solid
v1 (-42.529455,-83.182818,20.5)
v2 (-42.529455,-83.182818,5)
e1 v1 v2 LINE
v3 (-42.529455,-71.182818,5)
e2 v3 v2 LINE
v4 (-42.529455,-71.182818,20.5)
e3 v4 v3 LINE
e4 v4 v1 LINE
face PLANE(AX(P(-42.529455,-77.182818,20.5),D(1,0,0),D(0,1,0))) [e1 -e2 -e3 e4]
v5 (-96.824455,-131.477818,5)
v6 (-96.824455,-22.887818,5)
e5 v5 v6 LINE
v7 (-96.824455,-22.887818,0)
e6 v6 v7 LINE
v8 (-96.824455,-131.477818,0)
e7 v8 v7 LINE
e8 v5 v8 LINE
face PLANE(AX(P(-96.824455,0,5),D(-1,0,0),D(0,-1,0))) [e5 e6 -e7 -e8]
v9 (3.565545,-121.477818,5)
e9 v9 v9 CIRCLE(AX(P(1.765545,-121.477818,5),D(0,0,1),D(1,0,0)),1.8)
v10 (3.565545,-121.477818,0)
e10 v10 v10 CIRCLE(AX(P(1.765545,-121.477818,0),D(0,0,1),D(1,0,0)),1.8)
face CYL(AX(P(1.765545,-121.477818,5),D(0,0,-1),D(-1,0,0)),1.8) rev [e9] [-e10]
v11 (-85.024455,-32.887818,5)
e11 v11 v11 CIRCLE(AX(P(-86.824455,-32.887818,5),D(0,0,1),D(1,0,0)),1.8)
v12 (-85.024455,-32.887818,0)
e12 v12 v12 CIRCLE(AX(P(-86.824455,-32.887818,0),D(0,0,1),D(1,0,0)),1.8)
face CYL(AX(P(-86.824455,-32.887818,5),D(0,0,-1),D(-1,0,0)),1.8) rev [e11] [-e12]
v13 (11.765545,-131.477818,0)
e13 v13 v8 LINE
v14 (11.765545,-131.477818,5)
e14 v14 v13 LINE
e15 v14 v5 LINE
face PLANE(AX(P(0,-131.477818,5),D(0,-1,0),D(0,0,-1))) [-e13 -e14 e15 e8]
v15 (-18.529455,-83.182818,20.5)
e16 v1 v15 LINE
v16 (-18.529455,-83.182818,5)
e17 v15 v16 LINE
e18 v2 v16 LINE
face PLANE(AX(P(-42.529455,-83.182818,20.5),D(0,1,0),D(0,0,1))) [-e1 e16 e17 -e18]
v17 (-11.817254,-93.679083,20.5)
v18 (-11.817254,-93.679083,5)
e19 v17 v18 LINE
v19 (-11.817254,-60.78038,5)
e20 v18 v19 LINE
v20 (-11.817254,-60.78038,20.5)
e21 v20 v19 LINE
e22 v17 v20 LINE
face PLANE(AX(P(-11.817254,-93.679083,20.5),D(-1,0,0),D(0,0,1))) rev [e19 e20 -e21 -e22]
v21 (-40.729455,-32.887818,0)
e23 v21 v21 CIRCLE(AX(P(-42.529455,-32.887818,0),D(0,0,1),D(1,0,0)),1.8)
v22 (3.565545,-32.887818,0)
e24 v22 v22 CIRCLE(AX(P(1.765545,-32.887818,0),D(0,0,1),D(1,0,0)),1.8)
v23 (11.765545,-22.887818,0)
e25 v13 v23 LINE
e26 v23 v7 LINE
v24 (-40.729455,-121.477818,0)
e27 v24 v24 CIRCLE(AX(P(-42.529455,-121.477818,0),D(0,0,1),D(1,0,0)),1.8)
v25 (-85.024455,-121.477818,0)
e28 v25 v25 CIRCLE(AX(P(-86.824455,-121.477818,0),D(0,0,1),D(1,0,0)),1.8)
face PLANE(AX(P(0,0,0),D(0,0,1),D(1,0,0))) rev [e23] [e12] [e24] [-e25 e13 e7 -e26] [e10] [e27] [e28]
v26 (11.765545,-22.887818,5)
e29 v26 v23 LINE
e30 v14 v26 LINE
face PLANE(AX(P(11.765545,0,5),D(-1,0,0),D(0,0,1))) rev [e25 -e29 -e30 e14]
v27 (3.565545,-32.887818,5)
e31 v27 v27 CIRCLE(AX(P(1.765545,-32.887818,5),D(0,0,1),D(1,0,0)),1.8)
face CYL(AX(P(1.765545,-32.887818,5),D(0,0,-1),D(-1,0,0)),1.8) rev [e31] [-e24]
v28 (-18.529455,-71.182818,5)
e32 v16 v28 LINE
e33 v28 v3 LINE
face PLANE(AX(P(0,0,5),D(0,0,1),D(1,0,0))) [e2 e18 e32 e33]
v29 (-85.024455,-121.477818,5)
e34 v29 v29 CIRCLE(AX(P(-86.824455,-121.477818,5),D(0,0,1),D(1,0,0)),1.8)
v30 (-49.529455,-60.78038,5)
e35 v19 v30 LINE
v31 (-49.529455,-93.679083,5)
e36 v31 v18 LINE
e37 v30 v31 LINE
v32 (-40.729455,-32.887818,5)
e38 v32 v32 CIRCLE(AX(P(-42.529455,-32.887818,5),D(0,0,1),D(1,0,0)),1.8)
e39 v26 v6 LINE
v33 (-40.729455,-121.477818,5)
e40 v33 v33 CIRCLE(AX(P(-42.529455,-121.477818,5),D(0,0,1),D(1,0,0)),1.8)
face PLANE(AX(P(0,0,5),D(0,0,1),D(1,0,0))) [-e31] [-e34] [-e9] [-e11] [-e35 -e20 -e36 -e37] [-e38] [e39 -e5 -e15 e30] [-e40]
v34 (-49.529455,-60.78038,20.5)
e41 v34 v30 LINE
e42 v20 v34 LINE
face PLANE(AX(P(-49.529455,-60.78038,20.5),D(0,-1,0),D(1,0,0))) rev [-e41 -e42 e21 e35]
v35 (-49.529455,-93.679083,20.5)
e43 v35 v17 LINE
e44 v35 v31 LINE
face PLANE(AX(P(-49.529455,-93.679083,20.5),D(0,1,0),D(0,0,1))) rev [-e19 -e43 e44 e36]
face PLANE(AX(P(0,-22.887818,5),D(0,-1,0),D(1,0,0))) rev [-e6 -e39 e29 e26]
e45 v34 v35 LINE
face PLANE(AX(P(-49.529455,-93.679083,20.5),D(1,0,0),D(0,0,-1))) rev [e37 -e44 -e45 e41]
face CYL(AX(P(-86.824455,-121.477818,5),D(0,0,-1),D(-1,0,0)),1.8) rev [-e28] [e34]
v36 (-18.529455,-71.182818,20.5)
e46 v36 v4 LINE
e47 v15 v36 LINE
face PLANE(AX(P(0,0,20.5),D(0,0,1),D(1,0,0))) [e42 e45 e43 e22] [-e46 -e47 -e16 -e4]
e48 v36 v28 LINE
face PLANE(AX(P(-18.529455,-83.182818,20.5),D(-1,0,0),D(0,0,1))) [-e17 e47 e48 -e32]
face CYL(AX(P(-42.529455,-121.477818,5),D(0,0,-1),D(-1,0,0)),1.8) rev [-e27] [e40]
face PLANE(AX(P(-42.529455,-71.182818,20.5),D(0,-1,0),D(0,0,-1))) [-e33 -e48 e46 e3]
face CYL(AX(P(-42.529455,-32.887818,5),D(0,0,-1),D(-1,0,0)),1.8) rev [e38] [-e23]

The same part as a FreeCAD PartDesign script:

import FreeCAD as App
import Part
import Sketcher
from FreeCAD import Vector


def add_polygon(sketch, points):
    """Adds a closed chain of lines whose ends are joined by coincident constraints."""
    first, n = sketch.GeometryCount, len(points)
    for a, b in zip(points, points[1:] + points[:1]):
        sketch.addGeometry(Part.LineSegment(App.Vector(*a, 0), App.Vector(*b, 0)), False)
    for i in range(n):
        sketch.addConstraint(Sketcher.Constraint("Coincident", first + i, 2, first + (i + 1) % n, 1))

doc = App.newDocument("Part")
params = doc.addObject("Spreadsheet::Sheet", "Params")
for row, (alias, value) in enumerate([
    ("sketch1_diameter", "3.6 mm"),
    ("sketch1_width", "108.59 mm"),
    ("pad1_length", "5 mm"),
    ("sketch2_width", "24 mm"),
    ("sketch2_height", "12 mm"),
    ("pad2_length", "15.5 mm"),
], start=1):
    params.set(f"A{row}", alias)
    params.set(f"B{row}", "=" + value)
    params.setAlias(f"B{row}", alias)

body = doc.addObject("PartDesign::Body", "Body")

# Sketch on XY plane
sketch1 = body.newObject("Sketcher::SketchObject", "Sketch")
sketch1.AttachmentSupport = (doc.getObject("XY_Plane"), [""])
sketch1.MapMode = "FlatFace"
add_polygon(sketch1, [(11.8, -131.5), (11.8, -22.9), (-96.8, -22.9), (-96.8, -131.5)])  # lines 0-3
sketch1.addGeometry(Part.Circle(Vector(1.8, -32.9, 0), Vector(0, 0, 1), 1.8), False)  # 4
sketch1.addGeometry(Part.Circle(Vector(-42.5, -32.9, 0), Vector(0, 0, 1), 1.8), False)  # 5
sketch1.addGeometry(Part.Circle(Vector(-86.8, -32.9, 0), Vector(0, 0, 1), 1.8), False)  # 6
sketch1.addGeometry(Part.Circle(Vector(1.8, -121.5, 0), Vector(0, 0, 1), 1.8), False)  # 7
sketch1.addGeometry(Part.Circle(Vector(-42.5, -121.5, 0), Vector(0, 0, 1), 1.8), False)  # 8
sketch1.addGeometry(Part.Circle(Vector(-86.8, -121.5, 0), Vector(0, 0, 1), 1.8), False)  # 9
sketch1.addConstraint(Sketcher.Constraint("Vertical", 0))
sketch1.addConstraint(Sketcher.Constraint("Horizontal", 1))
sketch1.addConstraint(Sketcher.Constraint("Vertical", 2))
sketch1.addConstraint(Sketcher.Constraint("Horizontal", 3))
sketch1.addConstraint(Sketcher.Constraint("Equal", 4, 5))
sketch1.addConstraint(Sketcher.Constraint("Equal", 5, 6))
sketch1.addConstraint(Sketcher.Constraint("Equal", 6, 7))
sketch1.addConstraint(Sketcher.Constraint("Equal", 7, 8))
sketch1.addConstraint(Sketcher.Constraint("Equal", 8, 9))
sketch1.addConstraint(Sketcher.Constraint("Horizontal", 4, 3, 5, 3))
sketch1.addConstraint(Sketcher.Constraint("Horizontal", 5, 3, 6, 3))
sketch1.addConstraint(Sketcher.Constraint("Horizontal", 7, 3, 8, 3))
sketch1.addConstraint(Sketcher.Constraint("Horizontal", 8, 3, 9, 3))
sketch1.addConstraint(Sketcher.Constraint("Vertical", 4, 3, 7, 3))
sketch1.addConstraint(Sketcher.Constraint("Vertical", 5, 3, 8, 3))
sketch1.addConstraint(Sketcher.Constraint("Vertical", 6, 3, 9, 3))
sketch1.addConstraint(Sketcher.Constraint("Equal", 3, 0))
sketch1.addConstraint(Sketcher.Constraint("Diameter", 4, 3.6))
sketch1.addConstraint(Sketcher.Constraint("DistanceX", 4, 3, 0, 2, 10.0))
sketch1.addConstraint(Sketcher.Constraint("DistanceY", 4, 3, 0, 2, 10.0))
sketch1.addConstraint(Sketcher.Constraint("DistanceX", 1, 2, 6, 3, 10.0))
sketch1.addConstraint(Sketcher.Constraint("DistanceY", 2, 2, 9, 3, 10.0))
sketch1.addConstraint(Sketcher.Constraint("DistanceX", 1, 2, 1, 1, 108.59))
sketch1.addConstraint(Sketcher.Constraint("DistanceX", 5, 3, 4, 3, 44.295))
sketch1.addConstraint(Sketcher.Constraint("DistanceX", -1, 1, 4, 3, 1.765545))
sketch1.addConstraint(Sketcher.Constraint("DistanceY", 4, 3, -1, 1, 32.887818))
sketch1.setExpression("Constraints[21]", "Params.sketch1_diameter")
sketch1.setExpression("Constraints[26]", "Params.sketch1_width")
pad1 = body.newObject("PartDesign::Pad", "Pad")
pad1.Profile = sketch1
pad1.setExpression("Length", "Params.pad1_length")

# Sketch on XY plane
sketch2 = body.newObject("Sketcher::SketchObject", "Sketch001")
sketch2.AttachmentSupport = (doc.getObject("XY_Plane"), [""])
sketch2.MapMode = "FlatFace"
sketch2.AttachmentOffset = App.Placement(Vector(0, 0, 5), App.Rotation())
add_polygon(sketch2, [(-50, -61), (-50, -94), (-12, -94), (-12, -61)])  # lines 0-3
add_polygon(sketch2, [(-43, -83), (-43, -71), (-19, -71), (-19, -83)])  # lines 4-7
sketch2.addConstraint(Sketcher.Constraint("Vertical", 0))
sketch2.addConstraint(Sketcher.Constraint("Horizontal", 1))
sketch2.addConstraint(Sketcher.Constraint("Vertical", 2))
sketch2.addConstraint(Sketcher.Constraint("Horizontal", 3))
sketch2.addConstraint(Sketcher.Constraint("Vertical", 4))
sketch2.addConstraint(Sketcher.Constraint("Horizontal", 5))
sketch2.addConstraint(Sketcher.Constraint("Vertical", 6))
sketch2.addConstraint(Sketcher.Constraint("Horizontal", 7))
sketch2.addConstraint(Sketcher.Constraint("DistanceX", 5, 1, 5, 2, 24.0))
sketch2.addConstraint(Sketcher.Constraint("DistanceY", 4, 1, 4, 2, 12.0))
sketch2.addConstraint(Sketcher.Constraint("DistanceX", 3, 2, 4, 2, 7.0))
sketch2.addConstraint(Sketcher.Constraint("DistanceX", 1, 1, 1, 2, 37.7122))
sketch2.addConstraint(Sketcher.Constraint("DistanceY", 0, 2, 0, 1, 32.898703))
sketch2.addConstraint(Sketcher.Constraint("DistanceY", 2, 2, -1, 1, 60.78038))
sketch2.addConstraint(Sketcher.Constraint("DistanceY", 4, 2, 3, 2, 10.402438))
sketch2.addConstraint(Sketcher.Constraint("DistanceX", 0, 2, -1, 1, 49.529455))
sketch2.setExpression("Constraints[16]", "Params.sketch2_width")
sketch2.setExpression("Constraints[17]", "Params.sketch2_height")
pad2 = body.newObject("PartDesign::Pad", "Pad001")
pad2.Profile = sketch2
pad2.setExpression("Length", "Params.pad2_length")

doc.recompute()
